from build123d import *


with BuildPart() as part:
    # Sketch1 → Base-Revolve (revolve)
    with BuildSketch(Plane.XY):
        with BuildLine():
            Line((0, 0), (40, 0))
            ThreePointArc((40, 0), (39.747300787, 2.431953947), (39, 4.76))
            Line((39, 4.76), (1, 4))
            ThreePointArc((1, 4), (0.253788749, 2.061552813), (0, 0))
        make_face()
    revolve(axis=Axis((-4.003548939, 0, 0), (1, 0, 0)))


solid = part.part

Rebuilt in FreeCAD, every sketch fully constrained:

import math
import FreeCAD as App
import Part
import Sketcher
Q = App.Units.Quantity

doc = App.newDocument("Part")
params = doc.addObject("Spreadsheet::Sheet", "Params")
for row, (alias, value) in enumerate([
    ("sketch1_radius", "8.5 mm"),
    ("sketch1_width", "40 mm"),
    ("revolution_angle", "360 deg"),
], start=1):
    params.set(f"A{row}", alias)
    params.set(f"B{row}", "=" + value)
    params.setAlias(f"B{row}", alias)

body = doc.addObject("PartDesign::Body", "Body")

# Sketch on XY plane
sketch1 = body.newObject("Sketcher::SketchObject", "Sketch")
sketch1.AttachmentSupport = (doc.getObject("XY_Plane"), [""])
sketch1.MapMode = "FlatFace"
sketch1.addGeometry(Part.LineSegment(App.Vector(0, 0, 0), App.Vector(40, 0, 0)), False)
sketch1.addGeometry(Part.ArcOfCircle(Part.Circle(App.Vector(28.2, 0, 0), App.Vector(0, 0, 1), 11.8), math.radians(0), math.radians(24)), False)
sketch1.addGeometry(Part.LineSegment(App.Vector(39, 4.8, 0), App.Vector(1, 4, 0)), False)
sketch1.addGeometry(Part.ArcOfCircle(Part.Circle(App.Vector(8.5, 0, 0), App.Vector(0, 0, 1), 8.5), math.radians(152), math.radians(180)), False)
sketch1.addConstraint(Sketcher.Constraint("Coincident", 0, 2, 1, 1))
sketch1.addConstraint(Sketcher.Constraint("Coincident", 1, 2, 2, 1))
sketch1.addConstraint(Sketcher.Constraint("Coincident", 2, 2, 3, 1))
sketch1.addConstraint(Sketcher.Constraint("Coincident", 3, 2, 0, 1))
sketch1.addConstraint(Sketcher.Constraint("Horizontal", 0))
sketch1.addConstraint(Sketcher.Constraint("Coincident", 3, 2, -1, 1))
sketch1.addConstraint(Sketcher.Constraint("PointOnObject", 1, 3, -1))
sketch1.addConstraint(Sketcher.Constraint("PointOnObject", 3, 3, -1))
sketch1.addConstraint(Sketcher.Constraint("Radius", 3, Q("8.5 mm")))
sketch1.addConstraint(Sketcher.Constraint("DistanceX", 0, 1, 0, 2, Q("40 mm")))
sketch1.addConstraint(Sketcher.Constraint("DistanceX", -1, 1, 1, 2, Q("39 mm")))
sketch1.addConstraint(Sketcher.Constraint("DistanceX", -1, 1, 2, 2, Q("1 mm")))
sketch1.addConstraint(Sketcher.Constraint("Radius", 1, Q("11.8288 mm")))
sketch1.setExpression("Constraints[8]", "Params.sketch1_radius")
sketch1.setExpression("Constraints[9]", "Params.sketch1_width")
revolution = body.newObject("PartDesign::Revolution", "Revolution")
revolution.Profile = sketch1
revolution.ReferenceAxis = (sketch1, ["H_Axis"])
revolution.setExpression("Angle", "Params.revolution_angle")

doc.recompute()
